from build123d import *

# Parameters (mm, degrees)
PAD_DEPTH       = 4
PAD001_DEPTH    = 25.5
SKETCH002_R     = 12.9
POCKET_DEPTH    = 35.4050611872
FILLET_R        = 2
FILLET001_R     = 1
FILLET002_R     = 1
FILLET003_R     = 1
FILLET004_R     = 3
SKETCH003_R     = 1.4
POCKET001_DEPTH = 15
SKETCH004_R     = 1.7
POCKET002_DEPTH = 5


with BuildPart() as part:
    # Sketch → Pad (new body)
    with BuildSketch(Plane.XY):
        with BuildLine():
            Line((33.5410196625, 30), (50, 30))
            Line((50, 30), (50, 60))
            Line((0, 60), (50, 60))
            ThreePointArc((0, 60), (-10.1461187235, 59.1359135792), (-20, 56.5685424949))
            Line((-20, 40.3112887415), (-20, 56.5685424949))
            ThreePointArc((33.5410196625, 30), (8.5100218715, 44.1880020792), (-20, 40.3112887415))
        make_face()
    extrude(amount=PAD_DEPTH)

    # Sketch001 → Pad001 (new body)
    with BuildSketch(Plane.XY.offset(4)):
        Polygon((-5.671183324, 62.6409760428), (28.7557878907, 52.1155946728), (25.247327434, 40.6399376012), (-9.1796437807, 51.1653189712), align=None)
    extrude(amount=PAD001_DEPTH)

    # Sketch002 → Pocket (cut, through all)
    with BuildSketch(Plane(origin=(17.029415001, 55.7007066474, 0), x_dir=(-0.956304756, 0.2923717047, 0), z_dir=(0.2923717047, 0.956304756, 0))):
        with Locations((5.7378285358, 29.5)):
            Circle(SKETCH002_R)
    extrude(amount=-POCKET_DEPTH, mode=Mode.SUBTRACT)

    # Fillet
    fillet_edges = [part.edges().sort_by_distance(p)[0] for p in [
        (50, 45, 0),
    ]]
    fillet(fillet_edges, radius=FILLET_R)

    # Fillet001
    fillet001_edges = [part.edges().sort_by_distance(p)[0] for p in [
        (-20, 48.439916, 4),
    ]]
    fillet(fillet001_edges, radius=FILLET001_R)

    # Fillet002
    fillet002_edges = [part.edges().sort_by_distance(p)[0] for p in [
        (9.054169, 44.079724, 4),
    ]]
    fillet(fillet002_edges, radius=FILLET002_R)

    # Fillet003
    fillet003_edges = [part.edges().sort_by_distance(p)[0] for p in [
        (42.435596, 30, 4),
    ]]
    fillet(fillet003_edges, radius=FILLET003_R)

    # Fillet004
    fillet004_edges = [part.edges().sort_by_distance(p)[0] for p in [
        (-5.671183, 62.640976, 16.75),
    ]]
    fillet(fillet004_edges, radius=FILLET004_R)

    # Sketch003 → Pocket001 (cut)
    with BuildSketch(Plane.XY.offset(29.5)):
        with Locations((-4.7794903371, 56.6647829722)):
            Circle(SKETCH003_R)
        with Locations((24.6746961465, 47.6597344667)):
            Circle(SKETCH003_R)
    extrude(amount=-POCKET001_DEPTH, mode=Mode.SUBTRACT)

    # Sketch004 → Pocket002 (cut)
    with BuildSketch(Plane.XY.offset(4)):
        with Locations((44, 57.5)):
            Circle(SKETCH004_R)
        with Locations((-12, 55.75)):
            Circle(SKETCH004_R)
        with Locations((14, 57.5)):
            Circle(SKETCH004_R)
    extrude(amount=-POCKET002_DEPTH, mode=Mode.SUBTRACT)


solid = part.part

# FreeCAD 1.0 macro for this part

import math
import FreeCAD as App
import Part
import Sketcher
from FreeCAD import Vector
Q = App.Units.Quantity


def edges_at(feature, points):
    """Names of the edges that pass closest to the given points."""
    edges = feature.Shape.Edges
    near = lambda p: min(range(len(edges)), key=lambda i: edges[i].distToShape(Part.Vertex(*p))[0])
    return sorted({f"Edge{near(p) + 1}" for p in points})


def add_polygon(sketch, points):
    """Adds a closed chain of lines whose ends are joined by coincident constraints."""
    first, n = sketch.GeometryCount, len(points)
    for a, b in zip(points, points[1:] + points[:1]):
        sketch.addGeometry(Part.LineSegment(App.Vector(*a, 0), App.Vector(*b, 0)), False)
    for i in range(n):
        sketch.addConstraint(Sketcher.Constraint("Coincident", first + i, 2, first + (i + 1) % n, 1))

doc = App.newDocument("Part")
body = doc.addObject("PartDesign::Body", "Body")

# Sketch on XY plane
sketch1 = body.newObject("Sketcher::SketchObject", "Sketch")
sketch1.AttachmentSupport = (doc.getObject("XY_Plane"), [""])
sketch1.MapMode = "FlatFace"
sketch1.addGeometry([
    Part.LineSegment(Vector(33.54102, 30, 0), Vector(50, 30, 0)),  # 0
    Part.LineSegment(Vector(50, 30, 0), Vector(50, 60, 0)),  # 1
    Part.LineSegment(Vector(50, 60, 0), Vector(0, 60, 0)),  # 2
    Part.ArcOfCircle(Part.Circle(Vector(0, 0, 0), Vector(0, 0, 1), 60), math.radians(90), math.radians(109.471221)),  # 3
    Part.LineSegment(Vector(-20, 56.568542, 0), Vector(-20, 40.311289, 0)),  # 4
    Part.ArcOfCircle(Part.Circle(Vector(0, 0, 0), Vector(0, 0, 1), 45), math.radians(41.810315), math.radians(116.3878)),  # 5
], False)
sketch1.addConstraint([
    Sketcher.Constraint("Coincident", 0, 2, 1, 1),
    Sketcher.Constraint("Coincident", 1, 2, 2, 1),
    Sketcher.Constraint("Tangent", 2, 2, 3, 1),
    Sketcher.Constraint("Coincident", 3, 2, 4, 1),
    Sketcher.Constraint("Coincident", 4, 2, 5, 2),
    Sketcher.Constraint("Coincident", 5, 1, 0, 1),
    Sketcher.Constraint("Horizontal", 0),
    Sketcher.Constraint("Vertical", 1),
    Sketcher.Constraint("Horizontal", 2),
    Sketcher.Constraint("Vertical", 4),
    Sketcher.Constraint("Coincident", 3, 3, -1, 1),
    Sketcher.Constraint("Coincident", 5, 3, -1, 1),
    Sketcher.Constraint("Radius", 3, Q("60 mm")),
    Sketcher.Constraint("Radius", 5, Q("45 mm")),
    Sketcher.Constraint("DistanceX", 2, 2, 2, 1, Q("50 mm")),
    Sketcher.Constraint("DistanceY", 1, 1, 1, 2, Q("30 mm")),
    Sketcher.Constraint("DistanceX", 3, 2, -1, 1, Q("20 mm")),
])
pad1 = body.newObject("PartDesign::Pad", "Pad")
pad1.Profile = sketch1
pad1.Length = 4

# Sketch on XY plane
sketch2 = body.newObject("Sketcher::SketchObject", "Sketch001")
sketch2.AttachmentSupport = (doc.getObject("XY_Plane"), [""])
sketch2.MapMode = "FlatFace"
sketch2.AttachmentOffset = App.Placement(Vector(0, 0, 4), App.Rotation())
add_polygon(sketch2, [(28.755788, 52.115595), (-5.671183, 62.640976), (-9.179644, 51.165319), (25.247327, 40.639938)])  # lines 0-3
sketch2.addConstraint([
    Sketcher.Constraint("Perpendicular", 0, 1),
    Sketcher.Constraint("Perpendicular", 1, 2),
    Sketcher.Constraint("Perpendicular", 2, 3),
    Sketcher.Constraint("Angle", 0, Q("163 deg")),
    Sketcher.Constraint("Distance", 0, Q("36 mm")),
    Sketcher.Constraint("Distance", 1, Q("12 mm")),
    Sketcher.Constraint("DistanceY", -1, 1, 1, 2, Q("51.165319 mm")),
    Sketcher.Constraint("DistanceX", 0, 2, -1, 1, Q("5.671183 mm")),
])
pad2 = body.newObject("PartDesign::Pad", "Pad001")
pad2.Profile = sketch2
pad2.Length = 25.5

# Sketch on an angled plane
sketch3 = body.newObject("Sketcher::SketchObject", "Sketch002")
sketch3.Placement = App.Placement(Vector(17.029415, 55.700707, 0), App.Rotation(Vector(-0.956304756, 0.292371705, 0), Vector(0, 0, 1), Vector(0.292371705, 0.956304756, 0), "ZXY"))
sketch3.addGeometry(Part.Circle(Vector(5.737829, 29.5, 0), Vector(0, 0, 1), 12.9), False)
sketch3.addConstraint([
    Sketcher.Constraint("Diameter", 0, Q("25.8 mm")),
    Sketcher.Constraint("DistanceY", -1, 1, 0, 3, Q("29.5 mm")),
    Sketcher.Constraint("DistanceX", -1, 1, 0, 3, Q("5.737829 mm")),
])
pocket1 = body.newObject("PartDesign::Pocket", "Pocket")
pocket1.Profile = sketch3
pocket1.Type = "ThroughAll"
doc.recompute()

fillet = body.newObject("PartDesign::Fillet", "Fillet")
fillet.Base = (pocket1, edges_at(pocket1, [(50, 45, 0)]))
fillet.Radius = 2
doc.recompute()

fillet2 = body.newObject("PartDesign::Fillet", "Fillet001")
fillet2.Base = (fillet, edges_at(fillet, [(-20, 48.44, 4)]))
fillet2.Radius = 1
doc.recompute()

fillet3 = body.newObject("PartDesign::Fillet", "Fillet002")
fillet3.Base = (fillet2, edges_at(fillet2, [(9.054, 44.08, 4)]))
fillet3.Radius = 1
doc.recompute()

fillet4 = body.newObject("PartDesign::Fillet", "Fillet003")
fillet4.Base = (fillet3, edges_at(fillet3, [(42.436, 30, 4)]))
fillet4.Radius = 1
doc.recompute()

fillet5 = body.newObject("PartDesign::Fillet", "Fillet004")
fillet5.Base = (fillet4, edges_at(fillet4, [(-5.671, 62.641, 16.75)]))
fillet5.Radius = 3

# Sketch on XY plane
sketch4 = body.newObject("Sketcher::SketchObject", "Sketch003")
sketch4.AttachmentSupport = (doc.getObject("XY_Plane"), [""])
sketch4.MapMode = "FlatFace"
sketch4.AttachmentOffset = App.Placement(Vector(0, 0, 29.5), App.Rotation())
sketch4.addGeometry([
    Part.Circle(Vector(-4.77949, 56.664783, 0), Vector(0, 0, 1), 1.4),
    Part.Circle(Vector(24.674696, 47.659734, 0), Vector(0, 0, 1), 1.4),
], False)
sketch4.addConstraint([
    Sketcher.Constraint("Equal", 0, 1),
    Sketcher.Constraint("Diameter", 0, Q("2.8 mm")),
    Sketcher.Constraint("DistanceX", 0, 3, -1, 1, Q("4.77949 mm")),
    Sketcher.Constraint("DistanceY", 1, 3, 0, 3, Q("9.005049 mm")),
    Sketcher.Constraint("DistanceY", -1, 1, 0, 3, Q("56.664783 mm")),
    Sketcher.Constraint("DistanceX", -1, 1, 1, 3, Q("24.674696 mm")),
])
pocket2 = body.newObject("PartDesign::Pocket", "Pocket001")
pocket2.Profile = sketch4
pocket2.Length = 15

# Sketch on XY plane
sketch5 = body.newObject("Sketcher::SketchObject", "Sketch004")
sketch5.AttachmentSupport = (doc.getObject("XY_Plane"), [""])
sketch5.MapMode = "FlatFace"
sketch5.AttachmentOffset = App.Placement(Vector(0, 0, 4), App.Rotation())
sketch5.addGeometry([
    Part.Circle(Vector(44, 57.5, 0), Vector(0, 0, 1), 1.7),
    Part.Circle(Vector(-12, 55.75, 0), Vector(0, 0, 1), 1.7),
    Part.Circle(Vector(14, 57.5, 0), Vector(0, 0, 1), 1.7),
], False)
sketch5.addConstraint([
    Sketcher.Constraint("Equal", 0, 1),
    Sketcher.Constraint("Equal", 1, 2),
    Sketcher.Constraint("Horizontal", 0, 3, 2, 3),
    Sketcher.Constraint("Diameter", 0, Q("3.4 mm")),
    Sketcher.Constraint("DistanceX", -1, 1, 0, 3, Q("44 mm")),
    Sketcher.Constraint("DistanceX", 1, 3, -1, 1, Q("12 mm")),
    Sketcher.Constraint("DistanceX", -1, 1, 2, 3, Q("14 mm")),
    Sketcher.Constraint("DistanceY", -1, 1, 0, 3, Q("57.5 mm")),
    Sketcher.Constraint("DistanceY", -1, 1, 1, 3, Q("55.75 mm")),
])
pocket3 = body.newObject("PartDesign::Pocket", "Pocket002")
pocket3.Profile = sketch5
pocket3.Length = 5

doc.recompute()
